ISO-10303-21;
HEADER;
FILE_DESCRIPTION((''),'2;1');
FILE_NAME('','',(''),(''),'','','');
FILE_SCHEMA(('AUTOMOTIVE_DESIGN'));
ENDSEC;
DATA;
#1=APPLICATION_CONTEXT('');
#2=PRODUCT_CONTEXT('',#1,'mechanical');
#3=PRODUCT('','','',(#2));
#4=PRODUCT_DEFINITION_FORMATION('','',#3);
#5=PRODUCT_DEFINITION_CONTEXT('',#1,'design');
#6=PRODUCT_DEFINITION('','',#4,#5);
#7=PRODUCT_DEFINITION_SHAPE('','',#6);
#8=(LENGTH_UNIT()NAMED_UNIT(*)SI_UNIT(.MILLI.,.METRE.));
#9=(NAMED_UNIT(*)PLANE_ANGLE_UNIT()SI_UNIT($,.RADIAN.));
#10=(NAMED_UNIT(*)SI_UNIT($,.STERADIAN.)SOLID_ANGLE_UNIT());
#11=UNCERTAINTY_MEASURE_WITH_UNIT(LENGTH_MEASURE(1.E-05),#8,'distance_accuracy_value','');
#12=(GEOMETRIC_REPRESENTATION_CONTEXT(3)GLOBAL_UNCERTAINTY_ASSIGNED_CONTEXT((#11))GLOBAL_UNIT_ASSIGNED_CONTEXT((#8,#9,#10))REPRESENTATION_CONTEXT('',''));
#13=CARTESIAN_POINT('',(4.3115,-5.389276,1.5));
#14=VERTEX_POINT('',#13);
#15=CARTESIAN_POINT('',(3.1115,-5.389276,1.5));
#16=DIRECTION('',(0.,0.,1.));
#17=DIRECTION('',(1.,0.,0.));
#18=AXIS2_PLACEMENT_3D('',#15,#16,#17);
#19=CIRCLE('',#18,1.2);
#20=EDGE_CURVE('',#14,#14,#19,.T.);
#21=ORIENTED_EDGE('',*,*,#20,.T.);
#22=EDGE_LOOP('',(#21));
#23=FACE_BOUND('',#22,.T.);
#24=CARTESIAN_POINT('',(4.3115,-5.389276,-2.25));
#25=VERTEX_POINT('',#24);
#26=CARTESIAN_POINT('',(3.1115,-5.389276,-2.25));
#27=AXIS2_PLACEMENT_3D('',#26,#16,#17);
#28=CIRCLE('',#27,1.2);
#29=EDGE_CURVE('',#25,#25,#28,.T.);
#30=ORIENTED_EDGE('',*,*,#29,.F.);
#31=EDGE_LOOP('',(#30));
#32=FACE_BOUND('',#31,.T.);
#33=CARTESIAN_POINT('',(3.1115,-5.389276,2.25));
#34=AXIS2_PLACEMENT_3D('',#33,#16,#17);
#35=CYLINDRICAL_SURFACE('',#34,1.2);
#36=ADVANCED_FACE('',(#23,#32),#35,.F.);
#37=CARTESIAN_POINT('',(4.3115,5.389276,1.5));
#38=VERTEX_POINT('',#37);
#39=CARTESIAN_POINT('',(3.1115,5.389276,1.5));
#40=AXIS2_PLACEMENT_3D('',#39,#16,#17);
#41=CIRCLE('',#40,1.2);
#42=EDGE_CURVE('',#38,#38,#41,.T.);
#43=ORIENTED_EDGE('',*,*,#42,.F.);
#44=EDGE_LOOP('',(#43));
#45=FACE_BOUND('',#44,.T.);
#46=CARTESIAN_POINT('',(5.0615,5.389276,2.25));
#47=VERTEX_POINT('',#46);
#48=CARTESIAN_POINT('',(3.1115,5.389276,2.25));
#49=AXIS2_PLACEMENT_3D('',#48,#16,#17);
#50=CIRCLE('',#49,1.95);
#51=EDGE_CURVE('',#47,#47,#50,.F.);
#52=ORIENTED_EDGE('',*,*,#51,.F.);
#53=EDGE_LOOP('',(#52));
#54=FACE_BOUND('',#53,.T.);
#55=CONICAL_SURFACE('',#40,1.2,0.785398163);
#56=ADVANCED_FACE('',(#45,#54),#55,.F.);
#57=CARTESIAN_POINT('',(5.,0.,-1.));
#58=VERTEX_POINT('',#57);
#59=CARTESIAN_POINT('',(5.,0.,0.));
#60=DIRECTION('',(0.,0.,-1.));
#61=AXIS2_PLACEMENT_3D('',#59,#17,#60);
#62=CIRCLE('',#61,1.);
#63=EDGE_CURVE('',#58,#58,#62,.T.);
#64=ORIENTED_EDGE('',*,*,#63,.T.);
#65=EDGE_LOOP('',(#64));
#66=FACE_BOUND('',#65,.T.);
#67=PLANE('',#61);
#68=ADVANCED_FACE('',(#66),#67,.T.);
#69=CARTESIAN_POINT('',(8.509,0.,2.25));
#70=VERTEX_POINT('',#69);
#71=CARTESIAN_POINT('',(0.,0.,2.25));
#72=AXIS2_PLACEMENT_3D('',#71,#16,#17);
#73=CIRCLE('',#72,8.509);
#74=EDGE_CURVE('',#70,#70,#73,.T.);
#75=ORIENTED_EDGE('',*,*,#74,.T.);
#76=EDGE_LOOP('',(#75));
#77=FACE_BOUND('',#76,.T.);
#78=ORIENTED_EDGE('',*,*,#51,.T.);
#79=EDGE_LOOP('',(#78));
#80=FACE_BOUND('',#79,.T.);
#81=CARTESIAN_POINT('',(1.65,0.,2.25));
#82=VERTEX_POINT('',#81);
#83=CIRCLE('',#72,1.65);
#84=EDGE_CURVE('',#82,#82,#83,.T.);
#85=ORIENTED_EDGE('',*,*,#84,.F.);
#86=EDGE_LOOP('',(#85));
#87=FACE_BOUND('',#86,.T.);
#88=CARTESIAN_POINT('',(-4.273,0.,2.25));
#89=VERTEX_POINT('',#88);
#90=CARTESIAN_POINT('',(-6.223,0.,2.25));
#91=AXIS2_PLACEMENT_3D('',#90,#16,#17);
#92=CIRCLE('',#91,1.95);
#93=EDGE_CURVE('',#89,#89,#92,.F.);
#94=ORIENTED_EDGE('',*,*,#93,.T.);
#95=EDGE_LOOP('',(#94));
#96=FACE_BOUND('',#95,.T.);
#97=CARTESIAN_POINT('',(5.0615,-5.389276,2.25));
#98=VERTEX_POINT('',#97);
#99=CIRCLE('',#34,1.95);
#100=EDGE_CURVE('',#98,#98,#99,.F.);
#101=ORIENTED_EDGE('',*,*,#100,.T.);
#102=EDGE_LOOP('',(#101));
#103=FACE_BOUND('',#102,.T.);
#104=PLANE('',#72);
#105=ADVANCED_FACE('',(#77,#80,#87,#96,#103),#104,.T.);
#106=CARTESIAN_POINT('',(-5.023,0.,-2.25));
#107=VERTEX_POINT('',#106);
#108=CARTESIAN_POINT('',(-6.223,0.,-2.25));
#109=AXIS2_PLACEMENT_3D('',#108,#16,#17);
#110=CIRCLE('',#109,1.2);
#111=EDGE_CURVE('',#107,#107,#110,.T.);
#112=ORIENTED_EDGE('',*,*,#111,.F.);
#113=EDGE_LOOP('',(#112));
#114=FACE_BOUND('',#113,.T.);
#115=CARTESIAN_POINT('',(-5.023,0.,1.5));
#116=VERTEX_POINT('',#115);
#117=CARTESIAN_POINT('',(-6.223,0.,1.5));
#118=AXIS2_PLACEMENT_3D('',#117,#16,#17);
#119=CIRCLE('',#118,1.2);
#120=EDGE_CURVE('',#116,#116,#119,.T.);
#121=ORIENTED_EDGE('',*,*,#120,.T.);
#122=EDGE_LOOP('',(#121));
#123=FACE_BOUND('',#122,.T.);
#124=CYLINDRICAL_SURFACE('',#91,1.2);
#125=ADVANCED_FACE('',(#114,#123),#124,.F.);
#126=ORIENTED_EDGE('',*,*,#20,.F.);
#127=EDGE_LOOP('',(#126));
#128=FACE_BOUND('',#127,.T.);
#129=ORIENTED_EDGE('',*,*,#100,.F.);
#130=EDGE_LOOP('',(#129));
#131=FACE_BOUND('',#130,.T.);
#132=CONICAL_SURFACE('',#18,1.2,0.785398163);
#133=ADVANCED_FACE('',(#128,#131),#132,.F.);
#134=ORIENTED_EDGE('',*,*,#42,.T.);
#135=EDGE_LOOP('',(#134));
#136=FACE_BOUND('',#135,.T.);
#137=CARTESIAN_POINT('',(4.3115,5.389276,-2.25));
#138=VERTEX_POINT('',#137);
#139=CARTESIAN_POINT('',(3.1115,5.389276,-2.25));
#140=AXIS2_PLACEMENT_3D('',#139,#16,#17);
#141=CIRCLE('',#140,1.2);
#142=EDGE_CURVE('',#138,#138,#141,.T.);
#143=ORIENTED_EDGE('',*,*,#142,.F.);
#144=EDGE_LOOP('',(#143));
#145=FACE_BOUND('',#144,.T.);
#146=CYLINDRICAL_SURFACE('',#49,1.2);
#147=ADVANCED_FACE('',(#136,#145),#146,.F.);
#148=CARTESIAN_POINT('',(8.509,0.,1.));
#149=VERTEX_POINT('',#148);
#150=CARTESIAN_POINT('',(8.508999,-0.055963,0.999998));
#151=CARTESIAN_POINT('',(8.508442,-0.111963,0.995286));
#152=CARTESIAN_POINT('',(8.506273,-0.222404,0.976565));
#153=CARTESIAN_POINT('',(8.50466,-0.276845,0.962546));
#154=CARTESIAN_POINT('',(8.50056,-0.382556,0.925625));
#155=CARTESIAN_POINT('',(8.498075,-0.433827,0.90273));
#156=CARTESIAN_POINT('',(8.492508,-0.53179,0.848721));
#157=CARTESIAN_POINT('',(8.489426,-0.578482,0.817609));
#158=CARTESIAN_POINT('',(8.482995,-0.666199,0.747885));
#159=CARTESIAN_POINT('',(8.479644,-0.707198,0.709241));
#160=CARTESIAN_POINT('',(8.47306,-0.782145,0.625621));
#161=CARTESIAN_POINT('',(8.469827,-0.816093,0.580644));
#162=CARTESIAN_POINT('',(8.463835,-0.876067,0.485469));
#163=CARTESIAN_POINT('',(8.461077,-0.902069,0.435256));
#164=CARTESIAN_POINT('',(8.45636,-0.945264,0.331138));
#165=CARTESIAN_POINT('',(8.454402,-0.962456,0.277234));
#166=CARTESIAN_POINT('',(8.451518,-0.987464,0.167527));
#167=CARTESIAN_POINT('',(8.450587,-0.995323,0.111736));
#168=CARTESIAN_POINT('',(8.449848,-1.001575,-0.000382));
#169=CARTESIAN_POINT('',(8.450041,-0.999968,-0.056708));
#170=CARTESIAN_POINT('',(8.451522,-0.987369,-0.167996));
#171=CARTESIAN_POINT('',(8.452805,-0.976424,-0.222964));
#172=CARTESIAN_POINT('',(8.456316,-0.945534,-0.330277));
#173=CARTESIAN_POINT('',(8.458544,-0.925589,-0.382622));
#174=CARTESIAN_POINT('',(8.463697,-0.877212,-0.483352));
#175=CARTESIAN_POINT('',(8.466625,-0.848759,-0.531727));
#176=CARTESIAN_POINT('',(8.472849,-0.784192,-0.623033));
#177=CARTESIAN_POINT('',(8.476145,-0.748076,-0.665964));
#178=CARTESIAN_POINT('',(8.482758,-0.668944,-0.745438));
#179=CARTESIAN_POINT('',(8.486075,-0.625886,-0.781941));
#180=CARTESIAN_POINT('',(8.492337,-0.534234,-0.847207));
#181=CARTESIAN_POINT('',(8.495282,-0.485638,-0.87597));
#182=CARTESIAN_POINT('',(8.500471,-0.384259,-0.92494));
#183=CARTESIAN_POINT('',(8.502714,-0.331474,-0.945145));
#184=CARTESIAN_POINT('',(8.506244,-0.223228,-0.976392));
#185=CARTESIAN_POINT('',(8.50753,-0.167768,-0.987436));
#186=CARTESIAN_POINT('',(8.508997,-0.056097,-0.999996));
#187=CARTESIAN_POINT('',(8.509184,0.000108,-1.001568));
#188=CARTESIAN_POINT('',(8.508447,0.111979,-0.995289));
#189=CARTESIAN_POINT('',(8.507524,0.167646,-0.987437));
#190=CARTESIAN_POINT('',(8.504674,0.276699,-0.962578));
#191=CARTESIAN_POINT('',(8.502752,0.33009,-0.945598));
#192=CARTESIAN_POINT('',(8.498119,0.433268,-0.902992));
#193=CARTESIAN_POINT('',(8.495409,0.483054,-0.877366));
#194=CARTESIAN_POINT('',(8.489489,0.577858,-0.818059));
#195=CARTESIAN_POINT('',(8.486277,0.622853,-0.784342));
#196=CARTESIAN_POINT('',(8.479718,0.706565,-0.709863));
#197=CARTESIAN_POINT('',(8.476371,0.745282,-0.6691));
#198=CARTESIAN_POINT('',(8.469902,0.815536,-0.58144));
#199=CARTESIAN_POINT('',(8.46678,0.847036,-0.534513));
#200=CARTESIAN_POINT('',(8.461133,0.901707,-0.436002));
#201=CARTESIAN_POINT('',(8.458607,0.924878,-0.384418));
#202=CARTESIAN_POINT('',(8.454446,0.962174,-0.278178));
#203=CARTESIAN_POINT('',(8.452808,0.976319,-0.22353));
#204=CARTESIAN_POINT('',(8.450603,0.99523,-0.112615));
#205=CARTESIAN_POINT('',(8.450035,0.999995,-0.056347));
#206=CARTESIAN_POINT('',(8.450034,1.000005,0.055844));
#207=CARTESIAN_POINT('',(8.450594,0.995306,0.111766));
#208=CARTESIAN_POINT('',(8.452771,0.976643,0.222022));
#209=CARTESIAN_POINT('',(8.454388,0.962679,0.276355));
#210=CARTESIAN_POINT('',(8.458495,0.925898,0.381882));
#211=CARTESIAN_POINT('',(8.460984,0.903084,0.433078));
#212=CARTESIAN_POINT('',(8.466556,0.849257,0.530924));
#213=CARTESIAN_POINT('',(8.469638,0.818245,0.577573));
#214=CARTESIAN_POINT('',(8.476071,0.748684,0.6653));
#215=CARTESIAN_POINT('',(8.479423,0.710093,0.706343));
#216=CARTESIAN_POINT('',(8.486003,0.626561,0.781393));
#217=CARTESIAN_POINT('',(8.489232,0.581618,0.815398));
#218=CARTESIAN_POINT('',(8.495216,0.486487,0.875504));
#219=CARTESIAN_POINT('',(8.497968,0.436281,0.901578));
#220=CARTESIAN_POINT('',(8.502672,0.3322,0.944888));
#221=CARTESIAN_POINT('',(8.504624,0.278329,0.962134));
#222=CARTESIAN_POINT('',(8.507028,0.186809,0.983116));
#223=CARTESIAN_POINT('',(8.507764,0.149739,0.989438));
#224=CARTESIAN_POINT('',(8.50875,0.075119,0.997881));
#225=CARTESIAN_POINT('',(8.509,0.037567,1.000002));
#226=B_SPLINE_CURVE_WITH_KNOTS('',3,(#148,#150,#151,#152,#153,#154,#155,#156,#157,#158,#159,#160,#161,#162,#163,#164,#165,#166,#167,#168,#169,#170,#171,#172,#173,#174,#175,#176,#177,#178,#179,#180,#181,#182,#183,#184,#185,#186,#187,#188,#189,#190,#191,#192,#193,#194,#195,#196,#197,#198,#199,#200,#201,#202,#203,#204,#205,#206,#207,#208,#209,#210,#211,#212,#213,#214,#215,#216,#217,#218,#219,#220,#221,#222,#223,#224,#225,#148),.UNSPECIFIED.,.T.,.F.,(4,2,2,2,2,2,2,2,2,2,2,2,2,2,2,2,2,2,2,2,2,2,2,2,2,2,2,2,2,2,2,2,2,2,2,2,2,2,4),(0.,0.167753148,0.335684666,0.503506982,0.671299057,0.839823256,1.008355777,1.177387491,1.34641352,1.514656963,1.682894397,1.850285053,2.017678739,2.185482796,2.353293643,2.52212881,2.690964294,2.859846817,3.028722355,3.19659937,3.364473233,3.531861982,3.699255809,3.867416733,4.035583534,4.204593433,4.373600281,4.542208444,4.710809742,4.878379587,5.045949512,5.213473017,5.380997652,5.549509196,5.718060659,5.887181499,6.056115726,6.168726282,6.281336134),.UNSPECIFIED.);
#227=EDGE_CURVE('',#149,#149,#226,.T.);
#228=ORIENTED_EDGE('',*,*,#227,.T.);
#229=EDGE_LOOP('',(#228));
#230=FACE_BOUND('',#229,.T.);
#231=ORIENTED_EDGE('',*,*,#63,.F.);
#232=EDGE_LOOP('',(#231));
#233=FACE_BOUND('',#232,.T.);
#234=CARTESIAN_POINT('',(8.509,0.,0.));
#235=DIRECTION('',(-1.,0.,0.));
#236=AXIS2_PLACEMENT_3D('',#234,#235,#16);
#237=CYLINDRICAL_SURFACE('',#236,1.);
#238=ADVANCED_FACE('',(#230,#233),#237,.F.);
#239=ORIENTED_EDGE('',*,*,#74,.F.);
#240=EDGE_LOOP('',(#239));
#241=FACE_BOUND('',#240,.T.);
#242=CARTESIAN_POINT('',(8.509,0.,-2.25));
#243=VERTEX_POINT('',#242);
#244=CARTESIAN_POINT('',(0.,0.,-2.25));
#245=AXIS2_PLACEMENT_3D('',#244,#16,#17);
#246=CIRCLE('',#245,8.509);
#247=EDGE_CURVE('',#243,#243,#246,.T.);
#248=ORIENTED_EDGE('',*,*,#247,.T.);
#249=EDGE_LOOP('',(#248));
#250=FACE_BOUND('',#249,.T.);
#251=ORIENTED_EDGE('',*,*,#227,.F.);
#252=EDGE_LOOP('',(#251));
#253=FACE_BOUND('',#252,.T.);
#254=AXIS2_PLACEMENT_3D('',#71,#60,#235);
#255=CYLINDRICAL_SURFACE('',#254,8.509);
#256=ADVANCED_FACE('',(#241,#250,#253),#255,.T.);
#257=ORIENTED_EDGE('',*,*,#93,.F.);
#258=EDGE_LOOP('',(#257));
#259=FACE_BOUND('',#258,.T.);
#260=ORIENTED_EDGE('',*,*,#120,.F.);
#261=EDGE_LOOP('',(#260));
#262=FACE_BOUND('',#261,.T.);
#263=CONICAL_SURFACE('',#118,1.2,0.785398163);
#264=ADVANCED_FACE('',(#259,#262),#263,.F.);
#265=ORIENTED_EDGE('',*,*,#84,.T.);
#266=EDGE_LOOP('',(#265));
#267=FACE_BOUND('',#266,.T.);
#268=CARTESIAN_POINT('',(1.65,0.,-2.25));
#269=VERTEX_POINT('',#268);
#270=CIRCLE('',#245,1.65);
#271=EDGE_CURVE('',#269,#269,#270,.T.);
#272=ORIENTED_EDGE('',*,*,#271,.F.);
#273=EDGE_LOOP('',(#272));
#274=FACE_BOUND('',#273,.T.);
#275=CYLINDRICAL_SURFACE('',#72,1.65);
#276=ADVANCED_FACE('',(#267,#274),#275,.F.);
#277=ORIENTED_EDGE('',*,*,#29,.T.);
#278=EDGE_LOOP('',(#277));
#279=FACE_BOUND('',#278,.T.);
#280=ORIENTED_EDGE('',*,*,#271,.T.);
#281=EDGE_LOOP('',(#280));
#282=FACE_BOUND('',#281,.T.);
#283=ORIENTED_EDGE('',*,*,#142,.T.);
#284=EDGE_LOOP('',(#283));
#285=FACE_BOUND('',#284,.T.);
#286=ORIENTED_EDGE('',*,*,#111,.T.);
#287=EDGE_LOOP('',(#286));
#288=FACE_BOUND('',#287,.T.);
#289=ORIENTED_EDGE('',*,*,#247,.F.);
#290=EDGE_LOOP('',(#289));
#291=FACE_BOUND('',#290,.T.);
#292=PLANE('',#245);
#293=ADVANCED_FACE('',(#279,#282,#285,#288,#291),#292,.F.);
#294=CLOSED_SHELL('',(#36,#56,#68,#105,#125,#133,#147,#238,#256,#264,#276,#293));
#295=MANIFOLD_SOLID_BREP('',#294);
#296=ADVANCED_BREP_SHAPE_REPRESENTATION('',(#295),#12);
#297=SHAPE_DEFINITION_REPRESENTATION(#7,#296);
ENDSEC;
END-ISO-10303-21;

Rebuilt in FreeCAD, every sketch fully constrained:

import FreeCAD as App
import Part
import Sketcher
Q = App.Units.Quantity


def edges_at(feature, points):
    """Names of the edges that pass closest to the given points."""
    edges = feature.Shape.Edges
    near = lambda p: min(range(len(edges)), key=lambda i: edges[i].distToShape(Part.Vertex(*p))[0])
    return sorted({f"Edge{near(p) + 1}" for p in points})

doc = App.newDocument("Part")
body = doc.addObject("PartDesign::Body", "Body")

sketch1 = body.newObject("Sketcher::SketchObject", "Sketch")
sketch1.AttachmentSupport = (doc.getObject("XY_Plane"), [""])
sketch1.MapMode = "FlatFace"
sketch1.addGeometry(Part.Circle(App.Vector(0, 0, 0), App.Vector(0, 0, 1), 9), False)
sketch1.addConstraint(Sketcher.Constraint("Coincident", 0, 3, -1, 1))
sketch1.addConstraint(Sketcher.Constraint("Diameter", 0, Q("17.018 mm")))
pad1 = body.newObject("PartDesign::Pad", "Pad")
pad1.Profile = sketch1
pad1.Length = 4.5
pad1.Midplane = True

sketch2 = body.newObject("Sketcher::SketchObject", "Sketch001")
sketch2.AttachmentSupport = (doc.getObject("XY_Plane"), [""])
sketch2.MapMode = "FlatFace"
sketch2.AttachmentOffset = App.Placement(App.Vector(0, 0, 2.25), App.Rotation())
sketch2.addGeometry(Part.Circle(App.Vector(-6.2, 0, 0), App.Vector(0, 0, 1), 1.2), False)
sketch2.addGeometry(Part.Circle(App.Vector(3.1, 5.4, 0), App.Vector(0, 0, 1), 1.2), False)
sketch2.addGeometry(Part.Circle(App.Vector(3.1, -5.4, 0), App.Vector(0, 0, 1), 1.2), False)
sketch2.addConstraint(Sketcher.Constraint("Equal", 0, 1))
sketch2.addConstraint(Sketcher.Constraint("Equal", 1, 2))
sketch2.addConstraint(Sketcher.Constraint("Symmetric", 1, 3, 2, 3, -1))
sketch2.addConstraint(Sketcher.Constraint("PointOnObject", 0, 3, -1))
sketch2.addConstraint(Sketcher.Constraint("Diameter", 0, Q("2.4 mm")))
sketch2.addConstraint(Sketcher.Constraint("DistanceX", 0, 3, -1, 1, Q("6.223 mm")))
sketch2.addConstraint(Sketcher.Constraint("DistanceX", -1, 1, 1, 3, Q("3.1115 mm")))
sketch2.addConstraint(Sketcher.Constraint("DistanceY", -1, 1, 1, 3, Q("5.389276 mm")))
doc.recompute()
hole = body.newObject("PartDesign::Hole", "Hole")
hole.Profile = sketch2
hole.ThreadType = "None"
hole.Diameter = 2.4
hole.DepthType = "ThroughAll"
doc.recompute()

chamfer = body.newObject("PartDesign::Chamfer", "Chamfer")
chamfer.Base = (hole, edges_at(hole, [(4.311, -5.389, 2.25)]))
chamfer.Size = 0.75
doc.recompute()

chamfer2 = body.newObject("PartDesign::Chamfer", "Chamfer001")
chamfer2.Base = (chamfer, edges_at(chamfer, [(4.311, 5.389, 2.25)]))
chamfer2.Size = 0.75
doc.recompute()

chamfer3 = body.newObject("PartDesign::Chamfer", "Chamfer002")
chamfer3.Base = (chamfer2, edges_at(chamfer2, [(-5.023, 0, 2.25)]))
chamfer3.Size = 0.75

sketch3 = body.newObject("Sketcher::SketchObject", "Sketch002")
sketch3.AttachmentSupport = (doc.getObject("XY_Plane"), [""])
sketch3.MapMode = "FlatFace"
sketch3.AttachmentOffset = App.Placement(App.Vector(0, 0, 2.25), App.Rotation())
sketch3.addGeometry(Part.Circle(App.Vector(0, 0, 0), App.Vector(0, 0, 1), 1.6), False)
sketch3.addConstraint(Sketcher.Constraint("Coincident", 0, 3, -1, 1))
sketch3.addConstraint(Sketcher.Constraint("Diameter", 0, Q("3.3 mm")))
doc.recompute()
hole2 = body.newObject("PartDesign::Hole", "Hole001")
hole2.Profile = sketch3
hole2.ThreadType = "None"
hole2.Diameter = 3.3
hole2.DepthType = "ThroughAll"

sketch4 = body.newObject("Sketcher::SketchObject", "Sketch003")
sketch4.AttachmentSupport = (doc.getObject("YZ_Plane"), [""])
sketch4.MapMode = "FlatFace"
sketch4.AttachmentOffset = App.Placement(App.Vector(0, 0, 5), App.Rotation())
sketch4.addGeometry(Part.Circle(App.Vector(0, 0, 0), App.Vector(0, 0, 1), 1), False)
sketch4.addConstraint(Sketcher.Constraint("Coincident", 0, 3, -1, 1))
sketch4.addConstraint(Sketcher.Constraint("Diameter", 0, Q("2 mm")))
pocket1 = body.newObject("PartDesign::Pocket", "Pocket")
pocket1.Profile = sketch4
pocket1.Type = "ThroughAll"
pocket1.Reversed = True

doc.recompute()
